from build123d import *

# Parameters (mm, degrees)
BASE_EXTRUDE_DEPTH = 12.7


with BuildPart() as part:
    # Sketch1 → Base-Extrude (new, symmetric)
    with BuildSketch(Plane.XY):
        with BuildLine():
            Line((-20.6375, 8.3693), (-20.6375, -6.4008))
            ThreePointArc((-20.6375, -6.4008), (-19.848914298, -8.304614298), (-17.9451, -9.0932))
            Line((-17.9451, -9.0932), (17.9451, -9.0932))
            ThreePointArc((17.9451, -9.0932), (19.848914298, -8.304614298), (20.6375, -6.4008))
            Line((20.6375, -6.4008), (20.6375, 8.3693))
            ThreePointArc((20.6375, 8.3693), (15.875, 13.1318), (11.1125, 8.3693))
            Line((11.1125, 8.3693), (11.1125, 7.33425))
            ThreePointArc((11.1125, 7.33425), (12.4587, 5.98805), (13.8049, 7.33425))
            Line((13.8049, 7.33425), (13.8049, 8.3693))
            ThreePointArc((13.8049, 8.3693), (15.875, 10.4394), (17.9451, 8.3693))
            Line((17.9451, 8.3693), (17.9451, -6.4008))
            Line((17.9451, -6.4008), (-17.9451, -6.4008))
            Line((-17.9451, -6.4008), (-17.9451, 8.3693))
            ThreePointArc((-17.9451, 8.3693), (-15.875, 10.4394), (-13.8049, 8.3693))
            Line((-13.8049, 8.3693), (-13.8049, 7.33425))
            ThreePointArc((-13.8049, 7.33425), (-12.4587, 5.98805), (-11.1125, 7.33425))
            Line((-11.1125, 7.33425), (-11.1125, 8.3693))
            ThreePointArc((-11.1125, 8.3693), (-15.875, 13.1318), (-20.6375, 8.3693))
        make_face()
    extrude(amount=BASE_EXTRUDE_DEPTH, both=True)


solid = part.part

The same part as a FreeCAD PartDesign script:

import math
import FreeCAD as App
import Part
import Sketcher

V = App.Vector
Q = App.Units.Quantity

doc = App.newDocument("Part")
body = doc.addObject("PartDesign::Body", "Body")

sketch1 = body.newObject("Sketcher::SketchObject", "Sketch")
sketch1.AttachmentSupport = (doc.getObject("XY_Plane"), [""])
sketch1.MapMode = "FlatFace"
sketch1.addGeometry([
    Part.LineSegment(V(-20.6, 8.4, 0), V(-20.6, -6.4, 0)),
    Part.ArcOfCircle(Part.Circle(V(-17.9, -6.4, 0), V(0, 0, 1), 2.7), math.radians(180), math.radians(270)),
    Part.LineSegment(V(-17.9, -9.1, 0), V(17.9, -9.1, 0)),
    Part.ArcOfCircle(Part.Circle(V(17.9, -6.4, 0), V(0, 0, 1), 2.7), math.radians(-90), math.radians(0)),
    Part.LineSegment(V(20.6, -6.4, 0), V(20.6, 8.4, 0)),
    Part.ArcOfCircle(Part.Circle(V(15.9, 8.4, 0), V(0, 0, 1), 4.8), math.radians(0), math.radians(180)),
    Part.LineSegment(V(11.1, 8.4, 0), V(11.1, 7.3, 0)),
    Part.ArcOfCircle(Part.Circle(V(12.5, 7.3, 0), V(0, 0, 1), 1.3), math.radians(180), math.radians(360)),
    Part.LineSegment(V(13.8, 7.3, 0), V(13.8, 8.4, 0)),
    Part.ArcOfCircle(Part.Circle(V(15.9, 8.4, 0), V(0, 0, 1), 2.1), math.radians(0), math.radians(180)),
    Part.LineSegment(V(17.9, 8.4, 0), V(17.9, -6.4, 0)),
    Part.LineSegment(V(17.9, -6.4, 0), V(-17.9, -6.4, 0)),
    Part.LineSegment(V(-17.9, -6.4, 0), V(-17.9, 8.4, 0)),
    Part.ArcOfCircle(Part.Circle(V(-15.9, 8.4, 0), V(0, 0, 1), 2.1), math.radians(0), math.radians(180)),
    Part.LineSegment(V(-13.8, 8.4, 0), V(-13.8, 7.3, 0)),
    Part.ArcOfCircle(Part.Circle(V(-12.5, 7.3, 0), V(0, 0, 1), 1.3), math.radians(180), math.radians(360)),
    Part.LineSegment(V(-11.1, 7.3, 0), V(-11.1, 8.4, 0)),
    Part.ArcOfCircle(Part.Circle(V(-15.9, 8.4, 0), V(0, 0, 1), 4.8), math.radians(0), math.radians(180)),
], False)
sketch1.addConstraint([
    Sketcher.Constraint("Tangent", 0, 2, 1, 1),
    Sketcher.Constraint("Tangent", 1, 2, 2, 1),
    Sketcher.Constraint("Tangent", 2, 2, 3, 1),
    Sketcher.Constraint("Tangent", 3, 2, 4, 1),
    Sketcher.Constraint("Tangent", 4, 2, 5, 1),
    Sketcher.Constraint("Tangent", 5, 2, 6, 1),
    Sketcher.Constraint("Tangent", 6, 2, 7, 1),
    Sketcher.Constraint("Tangent", 7, 2, 8, 1),
    Sketcher.Constraint("Tangent", 8, 2, 9, 2),
    Sketcher.Constraint("Tangent", 9, 1, 10, 1),
    Sketcher.Constraint("Coincident", 10, 2, 11, 1),
    Sketcher.Constraint("Coincident", 11, 2, 12, 1),
    Sketcher.Constraint("Tangent", 12, 2, 13, 2),
    Sketcher.Constraint("Tangent", 13, 1, 14, 1),
    Sketcher.Constraint("Tangent", 14, 2, 15, 1),
    Sketcher.Constraint("Tangent", 15, 2, 16, 1),
    Sketcher.Constraint("Tangent", 16, 2, 17, 1),
    Sketcher.Constraint("Tangent", 17, 2, 0, 1),
    Sketcher.Constraint("Vertical", 0),
    Sketcher.Constraint("Horizontal", 2),
    Sketcher.Constraint("Vertical", 4),
    Sketcher.Constraint("Vertical", 6),
    Sketcher.Constraint("Vertical", 8),
    Sketcher.Constraint("Vertical", 10),
    Sketcher.Constraint("Horizontal", 11),
    Sketcher.Constraint("Vertical", 12),
    Sketcher.Constraint("Vertical", 14),
    Sketcher.Constraint("Vertical", 16),
    Sketcher.Constraint("Coincident", 9, 3, 5, 3),
    Sketcher.Constraint("Coincident", 17, 3, 13, 3),
    Sketcher.Constraint("Coincident", 10, 2, 3, 3),
    Sketcher.Constraint("Coincident", 11, 2, 1, 3),
    Sketcher.Constraint("Equal", 9, 13),
    Sketcher.Constraint("Symmetric", 5, 3, 13, 3, -2),
    Sketcher.Constraint("Horizontal", 7, 3, 15, 3),
    Sketcher.Constraint("Radius", 1, Q("0.106 in")),
    Sketcher.Constraint("Radius", 5, Q("0.1875 in")),
    Sketcher.Constraint("DistanceX", 2, 1, 2, 2, Q("1.413 in")),
    Sketcher.Constraint("DistanceY", 0, 2, 0, 1, Q("0.5815 in")),
    Sketcher.Constraint("DistanceY", 1, 3, -1, 1, Q("0.252 in")),
    Sketcher.Constraint("DistanceY", 6, 2, 6, 1, Q("1.03505 mm")),
])
pad1 = body.newObject("PartDesign::Pad", "Pad")
pad1.Profile = sketch1
pad1.Length = Q("1 in")
pad1.Midplane = True

doc.recompute()
